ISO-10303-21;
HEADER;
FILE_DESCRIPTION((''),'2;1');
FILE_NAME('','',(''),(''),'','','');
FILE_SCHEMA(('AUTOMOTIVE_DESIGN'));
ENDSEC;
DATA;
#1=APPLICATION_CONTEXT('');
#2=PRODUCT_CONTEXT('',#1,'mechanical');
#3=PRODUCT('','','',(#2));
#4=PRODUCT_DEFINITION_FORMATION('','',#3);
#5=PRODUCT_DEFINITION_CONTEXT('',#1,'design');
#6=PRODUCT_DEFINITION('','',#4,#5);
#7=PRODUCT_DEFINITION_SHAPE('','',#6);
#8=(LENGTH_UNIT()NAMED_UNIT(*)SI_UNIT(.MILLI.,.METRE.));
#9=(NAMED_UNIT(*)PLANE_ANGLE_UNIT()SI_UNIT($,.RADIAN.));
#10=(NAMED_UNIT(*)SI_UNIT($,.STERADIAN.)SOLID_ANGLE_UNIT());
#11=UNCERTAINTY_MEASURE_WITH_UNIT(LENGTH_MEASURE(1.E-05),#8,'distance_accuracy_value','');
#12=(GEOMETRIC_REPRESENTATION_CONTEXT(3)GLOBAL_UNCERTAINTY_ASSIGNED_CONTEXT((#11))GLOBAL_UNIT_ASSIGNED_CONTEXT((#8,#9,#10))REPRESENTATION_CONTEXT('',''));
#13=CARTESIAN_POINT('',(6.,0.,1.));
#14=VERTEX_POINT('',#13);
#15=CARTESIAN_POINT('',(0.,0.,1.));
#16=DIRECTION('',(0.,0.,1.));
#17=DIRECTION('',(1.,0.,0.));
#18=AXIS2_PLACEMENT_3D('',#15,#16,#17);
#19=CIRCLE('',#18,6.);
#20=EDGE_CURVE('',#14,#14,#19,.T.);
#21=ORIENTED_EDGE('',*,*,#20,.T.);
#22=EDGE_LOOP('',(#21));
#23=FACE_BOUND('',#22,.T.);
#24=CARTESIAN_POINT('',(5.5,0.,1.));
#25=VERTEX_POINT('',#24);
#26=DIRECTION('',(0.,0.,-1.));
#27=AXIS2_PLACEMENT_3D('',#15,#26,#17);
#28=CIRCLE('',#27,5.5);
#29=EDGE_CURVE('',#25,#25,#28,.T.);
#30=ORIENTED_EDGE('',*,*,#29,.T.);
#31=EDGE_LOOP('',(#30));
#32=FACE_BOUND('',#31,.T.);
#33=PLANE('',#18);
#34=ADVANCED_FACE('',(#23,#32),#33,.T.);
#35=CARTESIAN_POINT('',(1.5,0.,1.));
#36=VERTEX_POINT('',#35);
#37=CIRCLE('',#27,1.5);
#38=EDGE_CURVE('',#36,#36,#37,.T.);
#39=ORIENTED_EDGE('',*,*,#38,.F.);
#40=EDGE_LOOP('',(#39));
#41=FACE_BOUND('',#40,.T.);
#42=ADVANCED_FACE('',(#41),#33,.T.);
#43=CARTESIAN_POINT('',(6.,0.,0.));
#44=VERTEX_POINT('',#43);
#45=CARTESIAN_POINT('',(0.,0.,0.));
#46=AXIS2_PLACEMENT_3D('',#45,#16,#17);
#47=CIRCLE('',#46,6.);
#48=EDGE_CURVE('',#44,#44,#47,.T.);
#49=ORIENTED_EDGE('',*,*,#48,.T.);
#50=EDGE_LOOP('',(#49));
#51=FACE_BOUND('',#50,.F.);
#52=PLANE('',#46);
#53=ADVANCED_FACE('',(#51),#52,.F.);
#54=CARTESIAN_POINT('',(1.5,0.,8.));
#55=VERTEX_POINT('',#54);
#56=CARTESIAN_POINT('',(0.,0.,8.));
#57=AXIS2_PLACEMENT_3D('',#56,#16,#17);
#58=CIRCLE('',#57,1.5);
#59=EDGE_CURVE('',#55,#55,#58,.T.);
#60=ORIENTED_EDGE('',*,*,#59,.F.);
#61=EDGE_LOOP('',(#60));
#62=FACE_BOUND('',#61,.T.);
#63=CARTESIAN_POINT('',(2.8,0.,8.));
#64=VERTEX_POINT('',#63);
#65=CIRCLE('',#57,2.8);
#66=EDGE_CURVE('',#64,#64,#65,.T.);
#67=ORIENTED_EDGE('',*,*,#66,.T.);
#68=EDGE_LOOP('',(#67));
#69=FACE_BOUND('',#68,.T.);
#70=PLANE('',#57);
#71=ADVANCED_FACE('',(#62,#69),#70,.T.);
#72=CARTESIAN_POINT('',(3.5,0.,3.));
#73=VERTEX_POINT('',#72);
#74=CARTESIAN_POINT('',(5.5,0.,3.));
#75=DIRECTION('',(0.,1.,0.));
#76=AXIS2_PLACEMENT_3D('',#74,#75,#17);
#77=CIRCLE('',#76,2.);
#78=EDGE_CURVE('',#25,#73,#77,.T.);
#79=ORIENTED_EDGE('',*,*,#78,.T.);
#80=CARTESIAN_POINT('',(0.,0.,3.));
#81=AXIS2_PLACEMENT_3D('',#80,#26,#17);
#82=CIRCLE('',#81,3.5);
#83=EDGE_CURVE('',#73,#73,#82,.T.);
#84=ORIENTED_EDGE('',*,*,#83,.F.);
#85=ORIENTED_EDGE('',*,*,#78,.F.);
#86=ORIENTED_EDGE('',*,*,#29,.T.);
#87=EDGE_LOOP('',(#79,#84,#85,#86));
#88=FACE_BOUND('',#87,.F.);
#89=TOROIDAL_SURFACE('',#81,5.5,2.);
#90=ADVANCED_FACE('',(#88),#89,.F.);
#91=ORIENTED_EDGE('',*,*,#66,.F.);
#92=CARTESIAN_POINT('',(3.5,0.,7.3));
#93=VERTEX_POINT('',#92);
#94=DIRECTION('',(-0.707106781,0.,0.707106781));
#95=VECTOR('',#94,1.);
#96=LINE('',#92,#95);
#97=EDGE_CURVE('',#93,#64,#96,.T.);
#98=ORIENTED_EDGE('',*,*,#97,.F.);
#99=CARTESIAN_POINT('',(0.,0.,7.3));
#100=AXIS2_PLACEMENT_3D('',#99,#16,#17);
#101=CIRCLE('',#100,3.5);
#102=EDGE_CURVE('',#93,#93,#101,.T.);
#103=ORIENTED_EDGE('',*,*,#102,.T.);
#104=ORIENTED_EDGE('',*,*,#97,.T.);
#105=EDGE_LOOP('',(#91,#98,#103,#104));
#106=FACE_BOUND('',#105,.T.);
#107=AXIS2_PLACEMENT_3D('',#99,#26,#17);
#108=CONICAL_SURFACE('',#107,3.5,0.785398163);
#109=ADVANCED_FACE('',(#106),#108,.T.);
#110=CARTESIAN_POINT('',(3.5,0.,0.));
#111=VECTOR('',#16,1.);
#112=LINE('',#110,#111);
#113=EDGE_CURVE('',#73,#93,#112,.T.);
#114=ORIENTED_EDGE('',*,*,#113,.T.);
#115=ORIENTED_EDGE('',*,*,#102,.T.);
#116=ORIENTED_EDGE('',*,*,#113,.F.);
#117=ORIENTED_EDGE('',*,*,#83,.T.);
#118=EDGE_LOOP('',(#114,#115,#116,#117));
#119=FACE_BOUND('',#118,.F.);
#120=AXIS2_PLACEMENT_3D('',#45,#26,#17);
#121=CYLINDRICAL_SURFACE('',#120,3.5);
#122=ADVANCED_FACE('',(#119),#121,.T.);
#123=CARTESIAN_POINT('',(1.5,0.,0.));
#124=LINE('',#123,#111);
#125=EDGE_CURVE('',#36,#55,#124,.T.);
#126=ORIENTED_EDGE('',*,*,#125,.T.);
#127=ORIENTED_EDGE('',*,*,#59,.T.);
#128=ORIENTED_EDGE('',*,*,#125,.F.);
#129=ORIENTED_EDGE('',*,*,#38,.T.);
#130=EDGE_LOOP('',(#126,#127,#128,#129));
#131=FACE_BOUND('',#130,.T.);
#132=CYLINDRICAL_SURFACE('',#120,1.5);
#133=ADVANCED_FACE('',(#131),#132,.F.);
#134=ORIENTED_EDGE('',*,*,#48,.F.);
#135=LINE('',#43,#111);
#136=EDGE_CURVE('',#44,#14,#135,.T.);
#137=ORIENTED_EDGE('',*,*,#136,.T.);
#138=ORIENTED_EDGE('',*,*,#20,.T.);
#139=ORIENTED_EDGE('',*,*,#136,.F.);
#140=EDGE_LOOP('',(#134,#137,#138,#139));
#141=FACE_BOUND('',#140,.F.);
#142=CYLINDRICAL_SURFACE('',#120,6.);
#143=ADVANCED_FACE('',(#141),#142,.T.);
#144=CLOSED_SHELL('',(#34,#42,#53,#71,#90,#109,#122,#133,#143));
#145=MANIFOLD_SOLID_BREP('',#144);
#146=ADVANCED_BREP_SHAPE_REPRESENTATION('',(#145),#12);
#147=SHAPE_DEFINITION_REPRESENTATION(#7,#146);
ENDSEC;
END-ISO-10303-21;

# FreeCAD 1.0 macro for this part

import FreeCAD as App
import Part
import Sketcher
Q = App.Units.Quantity


def edges_at(feature, points):
    """Names of the edges that pass closest to the given points."""
    edges = feature.Shape.Edges
    near = lambda p: min(range(len(edges)), key=lambda i: edges[i].distToShape(Part.Vertex(*p))[0])
    return sorted({f"Edge{near(p) + 1}" for p in points})

doc = App.newDocument("Part")
params = doc.addObject("Spreadsheet::Sheet", "Params")
for row, (alias, value) in enumerate([
    ("sketch1_diameter", "12 mm"),
    ("pad1_length", "1 mm"),
    ("sketch2_diameter", "7 mm"),
    ("sketch2_diameter2", "3 mm"),
    ("pad2_length", "8 mm"),
    ("fillet_radius", "2 mm"),
    ("chamfer_size", "0.7 mm"),
], start=1):
    params.set(f"A{row}", alias)
    params.set(f"B{row}", "=" + value)
    params.setAlias(f"B{row}", alias)

body = doc.addObject("PartDesign::Body", "Body")

# Sketch on XY plane
sketch1 = body.newObject("Sketcher::SketchObject", "Sketch")
sketch1.AttachmentSupport = (doc.getObject("XY_Plane"), [""])
sketch1.MapMode = "FlatFace"
sketch1.addGeometry(Part.Circle(App.Vector(0, 0, 0), App.Vector(0, 0, 1), 6), False)
sketch1.addConstraint([
    Sketcher.Constraint("Coincident", 0, 3, -1, 1),
    Sketcher.Constraint("Diameter", 0, Q("12 mm")),
])
sketch1.setExpression("Constraints[1]", "Params.sketch1_diameter")
pad1 = body.newObject("PartDesign::Pad", "Pad")
pad1.Profile = sketch1
pad1.setExpression("Length", "Params.pad1_length")

# Sketch on XY plane
sketch2 = body.newObject("Sketcher::SketchObject", "Sketch001")
sketch2.AttachmentSupport = (doc.getObject("XY_Plane"), [""])
sketch2.MapMode = "FlatFace"
sketch2.addGeometry([
    Part.Circle(App.Vector(0, 0, 0), App.Vector(0, 0, 1), 3.5),
    Part.Circle(App.Vector(0, 0, 0), App.Vector(0, 0, 1), 1.5),
], False)
sketch2.addConstraint([
    Sketcher.Constraint("Coincident", 0, 3, -1, 1),
    Sketcher.Constraint("Coincident", 1, 3, -1, 1),
    Sketcher.Constraint("Diameter", 0, Q("7 mm")),
    Sketcher.Constraint("Diameter", 1, Q("3 mm")),
])
sketch2.setExpression("Constraints[2]", "Params.sketch2_diameter")
sketch2.setExpression("Constraints[3]", "Params.sketch2_diameter2")
pad2 = body.newObject("PartDesign::Pad", "Pad001")
pad2.Profile = sketch2
pad2.setExpression("Length", "Params.pad2_length")
doc.recompute()

fillet = body.newObject("PartDesign::Fillet", "Fillet")
fillet.Base = (pad2, edges_at(pad2, [(-3.5, 0, 1)]))
fillet.setExpression("Radius", "Params.fillet_radius")
doc.recompute()

chamfer = body.newObject("PartDesign::Chamfer", "Chamfer")
chamfer.Base = (fillet, edges_at(fillet, [(-3.5, 0, 8)]))
chamfer.setExpression("Size", "Params.chamfer_size")

doc.recompute()
